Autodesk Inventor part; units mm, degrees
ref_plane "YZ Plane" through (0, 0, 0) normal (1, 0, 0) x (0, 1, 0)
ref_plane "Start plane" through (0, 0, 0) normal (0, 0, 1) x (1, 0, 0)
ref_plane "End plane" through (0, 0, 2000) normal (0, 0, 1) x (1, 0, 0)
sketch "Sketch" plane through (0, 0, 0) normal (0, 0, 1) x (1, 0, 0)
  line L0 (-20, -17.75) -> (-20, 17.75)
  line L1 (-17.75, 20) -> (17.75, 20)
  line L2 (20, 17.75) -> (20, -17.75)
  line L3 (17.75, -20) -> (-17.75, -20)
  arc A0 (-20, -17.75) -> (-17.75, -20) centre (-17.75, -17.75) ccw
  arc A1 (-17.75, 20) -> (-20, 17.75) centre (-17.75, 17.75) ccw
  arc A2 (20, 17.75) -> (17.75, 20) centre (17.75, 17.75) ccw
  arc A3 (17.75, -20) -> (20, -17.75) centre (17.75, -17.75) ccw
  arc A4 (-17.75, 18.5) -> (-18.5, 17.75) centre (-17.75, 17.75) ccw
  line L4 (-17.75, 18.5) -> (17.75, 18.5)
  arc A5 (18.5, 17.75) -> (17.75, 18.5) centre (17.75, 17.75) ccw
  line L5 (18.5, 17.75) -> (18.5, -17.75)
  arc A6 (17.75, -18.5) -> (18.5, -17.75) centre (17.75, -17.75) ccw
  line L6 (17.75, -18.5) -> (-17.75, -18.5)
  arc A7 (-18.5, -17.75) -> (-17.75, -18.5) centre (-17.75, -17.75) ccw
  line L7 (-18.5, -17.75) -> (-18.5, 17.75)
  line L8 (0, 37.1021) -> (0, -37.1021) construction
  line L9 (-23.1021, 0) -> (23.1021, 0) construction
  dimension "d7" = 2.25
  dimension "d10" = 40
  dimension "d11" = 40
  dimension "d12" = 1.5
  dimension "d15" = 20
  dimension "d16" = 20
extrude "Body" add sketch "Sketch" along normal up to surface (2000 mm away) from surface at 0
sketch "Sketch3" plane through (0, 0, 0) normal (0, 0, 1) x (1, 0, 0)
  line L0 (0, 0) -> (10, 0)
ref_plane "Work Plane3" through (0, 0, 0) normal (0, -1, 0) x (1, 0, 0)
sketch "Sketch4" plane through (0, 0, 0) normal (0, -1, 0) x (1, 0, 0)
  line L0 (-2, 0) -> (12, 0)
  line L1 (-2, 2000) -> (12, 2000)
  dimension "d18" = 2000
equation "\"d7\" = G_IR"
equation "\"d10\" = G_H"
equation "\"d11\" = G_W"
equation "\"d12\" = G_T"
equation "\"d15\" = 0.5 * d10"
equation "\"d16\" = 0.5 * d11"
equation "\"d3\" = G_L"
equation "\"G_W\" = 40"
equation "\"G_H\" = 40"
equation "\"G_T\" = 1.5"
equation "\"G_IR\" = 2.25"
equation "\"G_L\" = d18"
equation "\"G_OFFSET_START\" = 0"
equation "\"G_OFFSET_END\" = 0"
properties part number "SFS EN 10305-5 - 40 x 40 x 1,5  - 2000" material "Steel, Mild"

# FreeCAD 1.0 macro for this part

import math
import FreeCAD as App
import Part
import Sketcher

doc = App.newDocument("Part")
params = doc.addObject("Spreadsheet::Sheet", "Params")
for row, (alias, value) in enumerate([
    ("sketch1_radius", "2.25 mm"),
    ("sketch1_radius2", "0.75 mm"),
    ("pad1_length", "2000 mm"),
], start=1):
    params.set(f"A{row}", alias)
    params.set(f"B{row}", "=" + value)
    params.setAlias(f"B{row}", alias)

body = doc.addObject("PartDesign::Body", "Body")

# Sketch on XY plane
sketch1 = body.newObject("Sketcher::SketchObject", "Sketch")
sketch1.AttachmentSupport = (doc.getObject("XY_Plane"), [""])
sketch1.MapMode = "FlatFace"
sketch1.addGeometry(Part.LineSegment(App.Vector(-20, 17.75, 0), App.Vector(-20, -17.75, 0)), False)
sketch1.addGeometry(Part.ArcOfCircle(Part.Circle(App.Vector(-17.75, -17.75, 0), App.Vector(0, 0, 1), 2.25), math.radians(180), math.radians(270)), False)
sketch1.addGeometry(Part.LineSegment(App.Vector(-17.75, -20, 0), App.Vector(17.75, -20, 0)), False)
sketch1.addGeometry(Part.ArcOfCircle(Part.Circle(App.Vector(17.75, -17.75, 0), App.Vector(0, 0, 1), 2.25), math.radians(-90), math.radians(0)), False)
sketch1.addGeometry(Part.LineSegment(App.Vector(20, -17.75, 0), App.Vector(20, 17.75, 0)), False)
sketch1.addGeometry(Part.ArcOfCircle(Part.Circle(App.Vector(17.75, 17.75, 0), App.Vector(0, 0, 1), 2.25), math.radians(0), math.radians(90)), False)
sketch1.addGeometry(Part.LineSegment(App.Vector(17.75, 20, 0), App.Vector(-17.75, 20, 0)), False)
sketch1.addGeometry(Part.ArcOfCircle(Part.Circle(App.Vector(-17.75, 17.75, 0), App.Vector(0, 0, 1), 2.25), math.radians(90), math.radians(180)), False)
sketch1.addGeometry(Part.ArcOfCircle(Part.Circle(App.Vector(-17.75, 17.75, 0), App.Vector(0, 0, 1), 0.75), math.radians(90), math.radians(180)), False)
sketch1.addGeometry(Part.LineSegment(App.Vector(-17.75, 18.5, 0), App.Vector(17.75, 18.5, 0)), False)
sketch1.addGeometry(Part.ArcOfCircle(Part.Circle(App.Vector(17.75, 17.75, 0), App.Vector(0, 0, 1), 0.75), math.radians(0), math.radians(90)), False)
sketch1.addGeometry(Part.LineSegment(App.Vector(18.5, 17.75, 0), App.Vector(18.5, -17.75, 0)), False)
sketch1.addGeometry(Part.ArcOfCircle(Part.Circle(App.Vector(17.75, -17.75, 0), App.Vector(0, 0, 1), 0.75), math.radians(-90), math.radians(0)), False)
sketch1.addGeometry(Part.LineSegment(App.Vector(17.75, -18.5, 0), App.Vector(-17.75, -18.5, 0)), False)
sketch1.addGeometry(Part.ArcOfCircle(Part.Circle(App.Vector(-17.75, -17.75, 0), App.Vector(0, 0, 1), 0.75), math.radians(180), math.radians(270)), False)
sketch1.addGeometry(Part.LineSegment(App.Vector(-18.5, -17.75, 0), App.Vector(-18.5, 17.75, 0)), False)
sketch1.addConstraint(Sketcher.Constraint("Tangent", 0, 2, 1, 1))
sketch1.addConstraint(Sketcher.Constraint("Tangent", 1, 2, 2, 1))
sketch1.addConstraint(Sketcher.Constraint("Tangent", 2, 2, 3, 1))
sketch1.addConstraint(Sketcher.Constraint("Tangent", 3, 2, 4, 1))
sketch1.addConstraint(Sketcher.Constraint("Tangent", 4, 2, 5, 1))
sketch1.addConstraint(Sketcher.Constraint("Tangent", 5, 2, 6, 1))
sketch1.addConstraint(Sketcher.Constraint("Tangent", 6, 2, 7, 1))
sketch1.addConstraint(Sketcher.Constraint("Tangent", 7, 2, 0, 1))
sketch1.addConstraint(Sketcher.Constraint("Tangent", 8, 1, 9, 1))
sketch1.addConstraint(Sketcher.Constraint("Tangent", 9, 2, 10, 2))
sketch1.addConstraint(Sketcher.Constraint("Tangent", 10, 1, 11, 1))
sketch1.addConstraint(Sketcher.Constraint("Tangent", 11, 2, 12, 2))
sketch1.addConstraint(Sketcher.Constraint("Tangent", 12, 1, 13, 1))
sketch1.addConstraint(Sketcher.Constraint("Tangent", 13, 2, 14, 2))
sketch1.addConstraint(Sketcher.Constraint("Tangent", 14, 1, 15, 1))
sketch1.addConstraint(Sketcher.Constraint("Tangent", 15, 2, 8, 2))
sketch1.addConstraint(Sketcher.Constraint("Vertical", 0))
sketch1.addConstraint(Sketcher.Constraint("Horizontal", 2))
sketch1.addConstraint(Sketcher.Constraint("Vertical", 4))
sketch1.addConstraint(Sketcher.Constraint("Horizontal", 6))
sketch1.addConstraint(Sketcher.Constraint("Horizontal", 9))
sketch1.addConstraint(Sketcher.Constraint("Vertical", 11))
sketch1.addConstraint(Sketcher.Constraint("Horizontal", 13))
sketch1.addConstraint(Sketcher.Constraint("Vertical", 15))
sketch1.addConstraint(Sketcher.Constraint("Coincident", 8, 3, 7, 3))
sketch1.addConstraint(Sketcher.Constraint("Coincident", 10, 3, 5, 3))
sketch1.addConstraint(Sketcher.Constraint("Coincident", 12, 3, 3, 3))
sketch1.addConstraint(Sketcher.Constraint("Equal", 1, 3))
sketch1.addConstraint(Sketcher.Constraint("Equal", 3, 5))
sketch1.addConstraint(Sketcher.Constraint("Equal", 5, 7))
sketch1.addConstraint(Sketcher.Constraint("Equal", 12, 14))
sketch1.addConstraint(Sketcher.Constraint("Symmetric", 1, 3, 5, 3, -1, 1))
sketch1.addConstraint(Sketcher.Constraint("Equal", 13, 0))
sketch1.addConstraint(Sketcher.Constraint("Radius", 1, 2.25))
sketch1.addConstraint(Sketcher.Constraint("Radius", 8, 0.75))
sketch1.addConstraint(Sketcher.Constraint("DistanceX", 0, 2, -1, 1, 20.0))
sketch1.setExpression("Constraints[33]", "Params.sketch1_radius")
sketch1.setExpression("Constraints[34]", "Params.sketch1_radius2")
pad1 = body.newObject("PartDesign::Pad", "Pad")
pad1.Profile = sketch1
pad1.setExpression("Length", "Params.pad1_length")

doc.recompute()
